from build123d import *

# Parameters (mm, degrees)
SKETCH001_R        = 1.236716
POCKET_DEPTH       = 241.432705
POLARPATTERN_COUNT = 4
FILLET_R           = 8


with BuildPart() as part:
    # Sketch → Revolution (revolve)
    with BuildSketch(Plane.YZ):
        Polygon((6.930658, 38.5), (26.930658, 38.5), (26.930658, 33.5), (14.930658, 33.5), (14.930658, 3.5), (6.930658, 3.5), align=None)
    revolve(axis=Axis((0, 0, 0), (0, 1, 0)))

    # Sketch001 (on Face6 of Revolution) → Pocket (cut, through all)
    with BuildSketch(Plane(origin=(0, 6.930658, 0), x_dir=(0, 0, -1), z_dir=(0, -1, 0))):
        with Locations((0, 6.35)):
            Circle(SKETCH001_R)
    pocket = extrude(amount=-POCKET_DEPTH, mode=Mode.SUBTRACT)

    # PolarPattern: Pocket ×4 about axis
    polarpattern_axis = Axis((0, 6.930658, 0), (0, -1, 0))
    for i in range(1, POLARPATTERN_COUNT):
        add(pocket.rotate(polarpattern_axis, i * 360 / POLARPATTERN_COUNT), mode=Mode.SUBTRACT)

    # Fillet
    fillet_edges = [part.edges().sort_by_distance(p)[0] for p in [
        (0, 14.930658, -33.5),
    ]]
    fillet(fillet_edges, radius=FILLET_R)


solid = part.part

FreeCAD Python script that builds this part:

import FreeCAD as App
import Part
import Sketcher

V = App.Vector


def edges_at(feature, points):
    """Names of the edges that pass closest to the given points."""
    edges = feature.Shape.Edges
    near = lambda p: min(range(len(edges)), key=lambda i: edges[i].distToShape(Part.Vertex(*p))[0])
    return sorted({f"Edge{near(p) + 1}" for p in points})

doc = App.newDocument("Part")
params = doc.addObject("Spreadsheet::Sheet", "Params")
for row, (alias, value) in enumerate([
    ("sketch1_width", "20 mm"),
    ("sketch1_width2", "8 mm"),
    ("sketch1_height", "35 mm"),
    ("sketch1_height2", "30 mm"),
    ("revolution_angle", "360 deg"),
    ("fillet_radius", "8 mm"),
], start=1):
    params.set(f"A{row}", alias)
    params.set(f"B{row}", "=" + value)
    params.setAlias(f"B{row}", alias)

body = doc.addObject("PartDesign::Body", "Body")

sketch1 = body.newObject("Sketcher::SketchObject", "Sketch")
sketch1.AttachmentSupport = (doc.getObject("YZ_Plane"), [""])
sketch1.MapMode = "FlatFace"
sketch1.addGeometry(Part.LineSegment(V(27, 38, 0), V(7, 38, 0)), False)
sketch1.addGeometry(Part.LineSegment(V(7, 38, 0), V(7, 4, 0)), False)
sketch1.addGeometry(Part.LineSegment(V(7, 4, 0), V(15, 4, 0)), False)
sketch1.addGeometry(Part.LineSegment(V(15, 4, 0), V(15, 34, 0)), False)
sketch1.addGeometry(Part.LineSegment(V(15, 34, 0), V(27, 34, 0)), False)
sketch1.addGeometry(Part.LineSegment(V(27, 34, 0), V(27, 38, 0)), False)
sketch1.addConstraint(Sketcher.Constraint("Coincident", 0, 2, 1, 1))
sketch1.addConstraint(Sketcher.Constraint("Coincident", 1, 2, 2, 1))
sketch1.addConstraint(Sketcher.Constraint("Coincident", 2, 2, 3, 1))
sketch1.addConstraint(Sketcher.Constraint("Coincident", 3, 2, 4, 1))
sketch1.addConstraint(Sketcher.Constraint("Coincident", 4, 2, 5, 1))
sketch1.addConstraint(Sketcher.Constraint("Coincident", 5, 2, 0, 1))
sketch1.addConstraint(Sketcher.Constraint("Horizontal", 0))
sketch1.addConstraint(Sketcher.Constraint("Vertical", 1))
sketch1.addConstraint(Sketcher.Constraint("Horizontal", 2))
sketch1.addConstraint(Sketcher.Constraint("Vertical", 3))
sketch1.addConstraint(Sketcher.Constraint("Horizontal", 4))
sketch1.addConstraint(Sketcher.Constraint("Vertical", 5))
sketch1.addConstraint(Sketcher.Constraint("DistanceX", 0, 2, 0, 1, 20.0))
sketch1.addConstraint(Sketcher.Constraint("DistanceX", 2, 1, 2, 2, 8.0))
sketch1.addConstraint(Sketcher.Constraint("DistanceY", 1, 2, 1, 1, 35.0))
sketch1.addConstraint(Sketcher.Constraint("DistanceY", 3, 1, 3, 2, 30.0))
sketch1.addConstraint(Sketcher.Constraint("DistanceY", -1, 1, 0, 2, 38.5))
sketch1.addConstraint(Sketcher.Constraint("DistanceX", -1, 1, 0, 2, 6.930658))
sketch1.setExpression("Constraints[12]", "Params.sketch1_width")
sketch1.setExpression("Constraints[13]", "Params.sketch1_width2")
sketch1.setExpression("Constraints[14]", "Params.sketch1_height")
sketch1.setExpression("Constraints[15]", "Params.sketch1_height2")
revolution = body.newObject("PartDesign::Revolution", "Revolution")
revolution.Profile = sketch1
revolution.ReferenceAxis = (sketch1, ["H_Axis"])
revolution.setExpression("Angle", "Params.revolution_angle")

sketch2 = body.newObject("Sketcher::SketchObject", "Sketch001")
sketch2.AttachmentSupport = (doc.getObject("XZ_Plane"), [""])
sketch2.MapMode = "FlatFace"
sketch2.AttachmentOffset = App.Placement(V(0, 0, -6.930658), App.Rotation())
sketch2.addGeometry(Part.Circle(V(6.3, 0, 0), V(0, 0, 1), 1.2), False)
sketch2.addConstraint(Sketcher.Constraint("PointOnObject", 0, 3, -1))
sketch2.addConstraint(Sketcher.Constraint("Diameter", 0, 2.473432))
sketch2.addConstraint(Sketcher.Constraint("DistanceX", -1, 1, 0, 3, 6.35))
pocket1 = body.newObject("PartDesign::Pocket", "Pocket")
pocket1.Profile = sketch2
pocket1.Type = "ThroughAll"
doc.recompute()

polarpattern = body.newObject("PartDesign::PolarPattern", "PolarPattern")
polarpattern.Originals = [pocket1]
polarpattern.Axis = (doc.getObject("Y_Axis"), [""])
polarpattern.Angle = 360
polarpattern.Occurrences = 4
body.Tip = polarpattern
doc.recompute()

fillet = body.newObject("PartDesign::Fillet", "Fillet")
fillet.Base = (polarpattern, edges_at(polarpattern, [(0, 14.931, -33.5)]))
fillet.setExpression("Radius", "Params.fillet_radius")

doc.recompute()
